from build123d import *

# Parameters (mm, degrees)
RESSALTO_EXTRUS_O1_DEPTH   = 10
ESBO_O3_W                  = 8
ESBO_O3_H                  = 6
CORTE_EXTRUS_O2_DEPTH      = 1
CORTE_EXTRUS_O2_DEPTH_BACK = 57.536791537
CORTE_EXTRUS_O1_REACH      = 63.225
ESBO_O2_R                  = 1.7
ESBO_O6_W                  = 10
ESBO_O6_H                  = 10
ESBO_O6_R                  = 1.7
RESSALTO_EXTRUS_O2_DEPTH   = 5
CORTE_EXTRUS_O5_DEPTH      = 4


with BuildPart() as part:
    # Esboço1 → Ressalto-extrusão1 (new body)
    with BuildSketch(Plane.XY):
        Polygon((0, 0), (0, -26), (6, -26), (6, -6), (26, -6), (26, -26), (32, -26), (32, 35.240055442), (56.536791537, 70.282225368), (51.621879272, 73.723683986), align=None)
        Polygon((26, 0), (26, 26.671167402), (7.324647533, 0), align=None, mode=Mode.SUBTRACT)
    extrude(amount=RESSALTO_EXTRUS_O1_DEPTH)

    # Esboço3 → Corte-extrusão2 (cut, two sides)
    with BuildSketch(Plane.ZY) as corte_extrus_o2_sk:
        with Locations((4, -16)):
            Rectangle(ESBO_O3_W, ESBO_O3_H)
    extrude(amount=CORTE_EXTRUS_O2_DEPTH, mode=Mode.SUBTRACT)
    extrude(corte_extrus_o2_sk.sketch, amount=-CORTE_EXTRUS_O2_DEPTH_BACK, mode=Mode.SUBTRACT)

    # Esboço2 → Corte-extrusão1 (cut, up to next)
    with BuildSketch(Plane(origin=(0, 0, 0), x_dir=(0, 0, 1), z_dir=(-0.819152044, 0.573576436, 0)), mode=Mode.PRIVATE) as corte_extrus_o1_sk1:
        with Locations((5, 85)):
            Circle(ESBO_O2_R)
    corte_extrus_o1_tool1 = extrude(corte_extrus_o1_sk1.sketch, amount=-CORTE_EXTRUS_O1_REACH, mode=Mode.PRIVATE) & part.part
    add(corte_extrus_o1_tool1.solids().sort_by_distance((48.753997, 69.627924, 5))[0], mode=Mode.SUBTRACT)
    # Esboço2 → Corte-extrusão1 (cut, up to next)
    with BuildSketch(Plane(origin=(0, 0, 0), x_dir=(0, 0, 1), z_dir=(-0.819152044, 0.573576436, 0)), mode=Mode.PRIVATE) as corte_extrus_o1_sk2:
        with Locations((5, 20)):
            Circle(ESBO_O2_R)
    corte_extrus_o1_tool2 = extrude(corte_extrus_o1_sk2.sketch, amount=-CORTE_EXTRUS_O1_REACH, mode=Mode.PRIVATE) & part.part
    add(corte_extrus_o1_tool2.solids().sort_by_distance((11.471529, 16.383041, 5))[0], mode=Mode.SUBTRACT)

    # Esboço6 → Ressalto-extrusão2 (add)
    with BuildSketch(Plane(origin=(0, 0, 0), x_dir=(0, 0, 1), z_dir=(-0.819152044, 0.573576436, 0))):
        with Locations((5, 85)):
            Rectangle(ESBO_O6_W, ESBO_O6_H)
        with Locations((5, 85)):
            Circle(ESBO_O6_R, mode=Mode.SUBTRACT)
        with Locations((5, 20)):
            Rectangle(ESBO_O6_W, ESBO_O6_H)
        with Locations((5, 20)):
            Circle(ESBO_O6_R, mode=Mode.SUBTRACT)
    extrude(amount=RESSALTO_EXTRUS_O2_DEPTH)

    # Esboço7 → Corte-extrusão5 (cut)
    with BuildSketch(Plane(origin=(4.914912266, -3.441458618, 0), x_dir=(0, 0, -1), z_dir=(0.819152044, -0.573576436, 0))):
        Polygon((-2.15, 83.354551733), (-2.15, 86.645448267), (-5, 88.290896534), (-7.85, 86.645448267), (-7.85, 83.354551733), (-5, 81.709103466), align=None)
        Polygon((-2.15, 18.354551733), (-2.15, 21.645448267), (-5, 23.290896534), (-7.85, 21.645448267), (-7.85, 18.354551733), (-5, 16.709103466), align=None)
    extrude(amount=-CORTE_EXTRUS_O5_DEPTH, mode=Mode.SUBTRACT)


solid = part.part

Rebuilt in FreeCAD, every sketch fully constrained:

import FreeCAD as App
import Part
import Sketcher

V = App.Vector
Q = App.Units.Quantity

doc = App.newDocument("Part")
body = doc.addObject("PartDesign::Body", "Body")

# Sketch on XY plane
sketch1 = body.newObject("Sketcher::SketchObject", "Sketch")
sketch1.AttachmentSupport = (doc.getObject("XY_Plane"), [""])
sketch1.MapMode = "FlatFace"
sketch1.addGeometry([
    Part.LineSegment(V(0, 0, 0), V(0, -26, 0)),  # 0
    Part.LineSegment(V(0, -26, 0), V(6, -26, 0)),  # 1
    Part.LineSegment(V(6, -26, 0), V(6, -6, 0)),  # 2
    Part.LineSegment(V(6, -6, 0), V(26, -6, 0)),  # 3
    Part.LineSegment(V(26, -6, 0), V(26, -26, 0)),  # 4
    Part.LineSegment(V(26, -26, 0), V(32, -26, 0)),  # 5
    Part.LineSegment(V(32, -26, 0), V(32, 35.240055, 0)),  # 6
    Part.LineSegment(V(32, 35.240055, 0), V(56.536792, 70.282225, 0)),  # 7
    Part.LineSegment(V(56.536792, 70.282225, 0), V(51.621879, 73.723684, 0)),  # 8
    Part.LineSegment(V(51.621879, 73.723684, 0), V(0, 0, 0)),  # 9
    Part.LineSegment(V(26, 26.671167, 0), V(26, 0, 0)),  # 10
    Part.LineSegment(V(26, 0, 0), V(7.324648, 0, 0)),  # 11
    Part.LineSegment(V(7.324648, 0, 0), V(26, 26.671167, 0)),  # 12
], False)
sketch1.addConstraint([
    Sketcher.Constraint("Coincident", 0, 2, 1, 1),
    Sketcher.Constraint("Coincident", 1, 2, 2, 1),
    Sketcher.Constraint("Coincident", 2, 2, 3, 1),
    Sketcher.Constraint("Coincident", 3, 2, 4, 1),
    Sketcher.Constraint("Coincident", 4, 2, 5, 1),
    Sketcher.Constraint("Coincident", 5, 2, 6, 1),
    Sketcher.Constraint("Coincident", 6, 2, 7, 1),
    Sketcher.Constraint("Coincident", 7, 2, 8, 1),
    Sketcher.Constraint("Coincident", 8, 2, 9, 1),
    Sketcher.Constraint("Coincident", 9, 2, 0, 1),
    Sketcher.Constraint("Coincident", 10, 2, 11, 1),
    Sketcher.Constraint("Coincident", 11, 2, 12, 1),
    Sketcher.Constraint("Coincident", 12, 2, 10, 1),
    Sketcher.Constraint("Vertical", 0),
    Sketcher.Constraint("Horizontal", 1),
    Sketcher.Constraint("Vertical", 2),
    Sketcher.Constraint("Horizontal", 3),
    Sketcher.Constraint("Vertical", 4),
    Sketcher.Constraint("Horizontal", 5),
    Sketcher.Constraint("Vertical", 6),
    Sketcher.Constraint("Vertical", 10),
    Sketcher.Constraint("Horizontal", 11),
    Sketcher.Constraint("Coincident", 9, 2, -1, 1),
    Sketcher.Constraint("PointOnObject", 10, 2, -1),
    Sketcher.Constraint("Perpendicular", 7, 8),
    Sketcher.Constraint("Perpendicular", 8, 9),
    Sketcher.Constraint("Parallel", 9, 12),
    Sketcher.Constraint("Horizontal", 1, 2, 4, 2),
    Sketcher.Constraint("Vertical", 4, 2, 10, 2),
    Sketcher.Constraint("Equal", 1, 5),
    Sketcher.Constraint("Equal", 3, 2),
    Sketcher.Constraint("DistanceX", 1, 1, 1, 2, 6.0),
    Sketcher.Constraint("DistanceX", 3, 1, 3, 2, 20.0),
    Sketcher.Constraint("DistanceY", 0, 2, 0, 1, 26.0),
    Sketcher.Constraint("Angle", 7, Q("55 deg")),
    Sketcher.Constraint("Distance", 8, 6.0),
    Sketcher.Constraint("Distance", 9, 90.0),
    Sketcher.Constraint("DistanceX", 11, 2, 11, 1, 18.675352),
])
pad1 = body.newObject("PartDesign::Pad", "Pad")
pad1.Profile = sketch1
pad1.Length = 10

# Sketch on YZ plane
sketch2 = body.newObject("Sketcher::SketchObject", "Sketch001")
sketch2.AttachmentSupport = (doc.getObject("YZ_Plane"), [""])
sketch2.MapMode = "FlatFace"
sketch2.addGeometry([
    Part.LineSegment(V(-13, 0, 0), V(-19, 0, 0)),
    Part.LineSegment(V(-19, 0, 0), V(-19, 8, 0)),
    Part.LineSegment(V(-19, 8, 0), V(-13, 8, 0)),
    Part.LineSegment(V(-13, 8, 0), V(-13, 0, 0)),
], False)
sketch2.addConstraint([
    Sketcher.Constraint("Coincident", 0, 2, 1, 1),
    Sketcher.Constraint("Coincident", 1, 2, 2, 1),
    Sketcher.Constraint("Coincident", 2, 2, 3, 1),
    Sketcher.Constraint("Coincident", 3, 2, 0, 1),
    Sketcher.Constraint("Horizontal", 0),
    Sketcher.Constraint("Vertical", 1),
    Sketcher.Constraint("Horizontal", 2),
    Sketcher.Constraint("Vertical", 3),
    Sketcher.Constraint("PointOnObject", 0, 2, -1),
    Sketcher.Constraint("DistanceX", 0, 2, 0, 1, 6.0),
    Sketcher.Constraint("DistanceY", 1, 1, 1, 2, 8.0),
    Sketcher.Constraint("DistanceX", 0, 2, -1, 1, 19.0),
])
pocket1 = body.newObject("PartDesign::Pocket", "Pocket")
pocket1.Profile = sketch2
pocket1.Type = "ThroughAll"
pocket1.Midplane = True

# Sketch on an angled plane
sketch3 = body.newObject("Sketcher::SketchObject", "Sketch002")
sketch3.Placement = App.Placement(V(0, 0, 0), App.Rotation(V(0, 0, 1), V(0.573576436, 0.819152044, 0), V(-0.819152044, 0.573576436, 0), "ZXY"))
sketch3.addGeometry(Part.Circle(V(5, 85, 0), V(0, 0, 1), 1.7), False)
sketch3.addConstraint([
    Sketcher.Constraint("Diameter", 0, 3.4),
    Sketcher.Constraint("DistanceX", -1, 1, 0, 3, 5.0),
    Sketcher.Constraint("DistanceY", -1, 1, 0, 3, 85.0),
])
pocket2 = body.newObject("PartDesign::Pocket", "Pocket001")
pocket2.Profile = sketch3
pocket2.Type = "UpToFirst"

# Sketch on an angled plane
sketch4 = body.newObject("Sketcher::SketchObject", "Sketch003")
sketch4.Placement = App.Placement(V(0, 0, 0), App.Rotation(V(0, 0, 1), V(0.573576436, 0.819152044, 0), V(-0.819152044, 0.573576436, 0), "ZXY"))
sketch4.addGeometry(Part.Circle(V(5, 20, 0), V(0, 0, 1), 1.7), False)
sketch4.addConstraint([
    Sketcher.Constraint("Diameter", 0, 3.4),
    Sketcher.Constraint("DistanceX", -1, 1, 0, 3, 5.0),
    Sketcher.Constraint("DistanceY", -1, 1, 0, 3, 20.0),
])
pocket3 = body.newObject("PartDesign::Pocket", "Pocket002")
pocket3.Profile = sketch4
pocket3.Type = "UpToFirst"

# Sketch on an angled plane
sketch5 = body.newObject("Sketcher::SketchObject", "Sketch004")
sketch5.Placement = App.Placement(V(0, 0, 0), App.Rotation(V(0, 0, 1), V(0.573576436, 0.819152044, 0), V(-0.819152044, 0.573576436, 0), "ZXY"))
sketch5.addGeometry([
    Part.LineSegment(V(0, 90, 0), V(0, 80, 0)),  # 0
    Part.LineSegment(V(0, 80, 0), V(10, 80, 0)),  # 1
    Part.LineSegment(V(10, 80, 0), V(10, 90, 0)),  # 2
    Part.LineSegment(V(10, 90, 0), V(0, 90, 0)),  # 3
    Part.Circle(V(5, 85, 0), V(0, 0, 1), 1.7),  # 4
    Part.LineSegment(V(0, 25, 0), V(0, 15, 0)),  # 5
    Part.LineSegment(V(0, 15, 0), V(10, 15, 0)),  # 6
    Part.LineSegment(V(10, 15, 0), V(10, 25, 0)),  # 7
    Part.LineSegment(V(10, 25, 0), V(0, 25, 0)),  # 8
    Part.Circle(V(5, 20, 0), V(0, 0, 1), 1.7),  # 9
], False)
sketch5.addConstraint([
    Sketcher.Constraint("Coincident", 0, 2, 1, 1),
    Sketcher.Constraint("Coincident", 1, 2, 2, 1),
    Sketcher.Constraint("Coincident", 2, 2, 3, 1),
    Sketcher.Constraint("Coincident", 3, 2, 0, 1),
    Sketcher.Constraint("Coincident", 5, 2, 6, 1),
    Sketcher.Constraint("Coincident", 6, 2, 7, 1),
    Sketcher.Constraint("Coincident", 7, 2, 8, 1),
    Sketcher.Constraint("Coincident", 8, 2, 5, 1),
    Sketcher.Constraint("Vertical", 0),
    Sketcher.Constraint("Horizontal", 1),
    Sketcher.Constraint("Vertical", 2),
    Sketcher.Constraint("Horizontal", 3),
    Sketcher.Constraint("Vertical", 5),
    Sketcher.Constraint("Horizontal", 6),
    Sketcher.Constraint("Vertical", 7),
    Sketcher.Constraint("Horizontal", 8),
    Sketcher.Constraint("Equal", 4, 9),
    Sketcher.Constraint("PointOnObject", 0, 2, -2),
    Sketcher.Constraint("PointOnObject", 5, 2, -2),
    Sketcher.Constraint("Vertical", 4, 3, 9, 3),
    Sketcher.Constraint("Vertical", 2, 2, 6, 2),
    Sketcher.Constraint("Equal", 8, 0),
    Sketcher.Constraint("Equal", 2, 5),
    Sketcher.Constraint("Diameter", 4, 3.4),
    Sketcher.Constraint("DistanceX", 1, 1, 1, 2, 10.0),
    Sketcher.Constraint("DistanceX", -1, 1, 4, 3, 5.0),
    Sketcher.Constraint("DistanceY", -1, 1, 4, 3, 85.0),
    Sketcher.Constraint("DistanceY", -1, 1, 9, 3, 20.0),
    Sketcher.Constraint("DistanceY", -1, 1, 0, 2, 80.0),
    Sketcher.Constraint("DistanceY", -1, 1, 5, 2, 15.0),
])
pad2 = body.newObject("PartDesign::Pad", "Pad001")
pad2.Profile = sketch5
pad2.Length = 5

# Sketch on an angled plane
sketch6 = body.newObject("Sketcher::SketchObject", "Sketch005")
sketch6.Placement = App.Placement(V(4.914912, -3.441459, 0), App.Rotation(V(0, 0, -1), V(0.573576436, 0.819152044, 0), V(0.819152044, -0.573576436, 0), "ZXY"))
sketch6.addGeometry([
    Part.LineSegment(V(-2.15, 83.354552, 0), V(-2.15, 86.645448, 0)),  # 0
    Part.LineSegment(V(-2.15, 86.645448, 0), V(-5, 88.290896, 0)),  # 1
    Part.LineSegment(V(-5, 88.290896, 0), V(-7.85, 86.645448, 0)),  # 2
    Part.LineSegment(V(-7.85, 86.645448, 0), V(-7.85, 83.354552, 0)),  # 3
    Part.LineSegment(V(-7.85, 83.354552, 0), V(-5, 81.709103, 0)),  # 4
    Part.LineSegment(V(-5, 81.709103, 0), V(-2.15, 83.354552, 0)),  # 5
    Part.LineSegment(V(-2.15, 18.354552, 0), V(-2.15, 21.645448, 0)),  # 6
    Part.LineSegment(V(-2.15, 21.645448, 0), V(-5, 23.290897, 0)),  # 7
    Part.LineSegment(V(-5, 23.290897, 0), V(-7.85, 21.645448, 0)),  # 8
    Part.LineSegment(V(-7.85, 21.645448, 0), V(-7.85, 18.354552, 0)),  # 9
    Part.LineSegment(V(-7.85, 18.354552, 0), V(-5, 16.709103, 0)),  # 10
    Part.LineSegment(V(-5, 16.709103, 0), V(-2.15, 18.354552, 0)),  # 11
], False)
sketch6.addConstraint([
    Sketcher.Constraint("Coincident", 0, 2, 1, 1),
    Sketcher.Constraint("Coincident", 1, 2, 2, 1),
    Sketcher.Constraint("Coincident", 2, 2, 3, 1),
    Sketcher.Constraint("Coincident", 3, 2, 4, 1),
    Sketcher.Constraint("Coincident", 4, 2, 5, 1),
    Sketcher.Constraint("Coincident", 5, 2, 0, 1),
    Sketcher.Constraint("Coincident", 6, 2, 7, 1),
    Sketcher.Constraint("Coincident", 7, 2, 8, 1),
    Sketcher.Constraint("Coincident", 8, 2, 9, 1),
    Sketcher.Constraint("Coincident", 9, 2, 10, 1),
    Sketcher.Constraint("Coincident", 10, 2, 11, 1),
    Sketcher.Constraint("Coincident", 11, 2, 6, 1),
    Sketcher.Constraint("Vertical", 0),
    Sketcher.Constraint("Vertical", 3),
    Sketcher.Constraint("Vertical", 6),
    Sketcher.Constraint("Vertical", 9),
    Sketcher.Constraint("Parallel", 1, 4),
    Sketcher.Constraint("Parallel", 2, 5),
    Sketcher.Constraint("Parallel", 4, 7),
    Sketcher.Constraint("Parallel", 5, 8),
    Sketcher.Constraint("Parallel", 7, 10),
    Sketcher.Constraint("Parallel", 8, 11),
    Sketcher.Constraint("Horizontal", 0, 2, 2, 2),
    Sketcher.Constraint("Horizontal", 3, 2, 5, 2),
    Sketcher.Constraint("Horizontal", 6, 2, 8, 2),
    Sketcher.Constraint("Horizontal", 9, 2, 11, 2),
    Sketcher.Constraint("Vertical", 1, 2, 4, 2),
    Sketcher.Constraint("Vertical", 5, 2, 6, 2),
    Sketcher.Constraint("Vertical", 4, 2, 7, 2),
    Sketcher.Constraint("Equal", 3, 6),
    Sketcher.Constraint("Angle", 1, Q("150 deg")),
    Sketcher.Constraint("DistanceX", 1, 2, -1, 1, 5.0),
    Sketcher.Constraint("DistanceY", 6, 2, 0, 2, 65.0),
    Sketcher.Constraint("DistanceX", 2, 2, 0, 2, 5.7),
    Sketcher.Constraint("DistanceY", 0, 1, 0, 2, 3.290897),
    Sketcher.Constraint("DistanceY", -1, 1, 0, 2, 86.645448),
])
pocket4 = body.newObject("PartDesign::Pocket", "Pocket003")
pocket4.Profile = sketch6
pocket4.Length = 4

doc.recompute()
